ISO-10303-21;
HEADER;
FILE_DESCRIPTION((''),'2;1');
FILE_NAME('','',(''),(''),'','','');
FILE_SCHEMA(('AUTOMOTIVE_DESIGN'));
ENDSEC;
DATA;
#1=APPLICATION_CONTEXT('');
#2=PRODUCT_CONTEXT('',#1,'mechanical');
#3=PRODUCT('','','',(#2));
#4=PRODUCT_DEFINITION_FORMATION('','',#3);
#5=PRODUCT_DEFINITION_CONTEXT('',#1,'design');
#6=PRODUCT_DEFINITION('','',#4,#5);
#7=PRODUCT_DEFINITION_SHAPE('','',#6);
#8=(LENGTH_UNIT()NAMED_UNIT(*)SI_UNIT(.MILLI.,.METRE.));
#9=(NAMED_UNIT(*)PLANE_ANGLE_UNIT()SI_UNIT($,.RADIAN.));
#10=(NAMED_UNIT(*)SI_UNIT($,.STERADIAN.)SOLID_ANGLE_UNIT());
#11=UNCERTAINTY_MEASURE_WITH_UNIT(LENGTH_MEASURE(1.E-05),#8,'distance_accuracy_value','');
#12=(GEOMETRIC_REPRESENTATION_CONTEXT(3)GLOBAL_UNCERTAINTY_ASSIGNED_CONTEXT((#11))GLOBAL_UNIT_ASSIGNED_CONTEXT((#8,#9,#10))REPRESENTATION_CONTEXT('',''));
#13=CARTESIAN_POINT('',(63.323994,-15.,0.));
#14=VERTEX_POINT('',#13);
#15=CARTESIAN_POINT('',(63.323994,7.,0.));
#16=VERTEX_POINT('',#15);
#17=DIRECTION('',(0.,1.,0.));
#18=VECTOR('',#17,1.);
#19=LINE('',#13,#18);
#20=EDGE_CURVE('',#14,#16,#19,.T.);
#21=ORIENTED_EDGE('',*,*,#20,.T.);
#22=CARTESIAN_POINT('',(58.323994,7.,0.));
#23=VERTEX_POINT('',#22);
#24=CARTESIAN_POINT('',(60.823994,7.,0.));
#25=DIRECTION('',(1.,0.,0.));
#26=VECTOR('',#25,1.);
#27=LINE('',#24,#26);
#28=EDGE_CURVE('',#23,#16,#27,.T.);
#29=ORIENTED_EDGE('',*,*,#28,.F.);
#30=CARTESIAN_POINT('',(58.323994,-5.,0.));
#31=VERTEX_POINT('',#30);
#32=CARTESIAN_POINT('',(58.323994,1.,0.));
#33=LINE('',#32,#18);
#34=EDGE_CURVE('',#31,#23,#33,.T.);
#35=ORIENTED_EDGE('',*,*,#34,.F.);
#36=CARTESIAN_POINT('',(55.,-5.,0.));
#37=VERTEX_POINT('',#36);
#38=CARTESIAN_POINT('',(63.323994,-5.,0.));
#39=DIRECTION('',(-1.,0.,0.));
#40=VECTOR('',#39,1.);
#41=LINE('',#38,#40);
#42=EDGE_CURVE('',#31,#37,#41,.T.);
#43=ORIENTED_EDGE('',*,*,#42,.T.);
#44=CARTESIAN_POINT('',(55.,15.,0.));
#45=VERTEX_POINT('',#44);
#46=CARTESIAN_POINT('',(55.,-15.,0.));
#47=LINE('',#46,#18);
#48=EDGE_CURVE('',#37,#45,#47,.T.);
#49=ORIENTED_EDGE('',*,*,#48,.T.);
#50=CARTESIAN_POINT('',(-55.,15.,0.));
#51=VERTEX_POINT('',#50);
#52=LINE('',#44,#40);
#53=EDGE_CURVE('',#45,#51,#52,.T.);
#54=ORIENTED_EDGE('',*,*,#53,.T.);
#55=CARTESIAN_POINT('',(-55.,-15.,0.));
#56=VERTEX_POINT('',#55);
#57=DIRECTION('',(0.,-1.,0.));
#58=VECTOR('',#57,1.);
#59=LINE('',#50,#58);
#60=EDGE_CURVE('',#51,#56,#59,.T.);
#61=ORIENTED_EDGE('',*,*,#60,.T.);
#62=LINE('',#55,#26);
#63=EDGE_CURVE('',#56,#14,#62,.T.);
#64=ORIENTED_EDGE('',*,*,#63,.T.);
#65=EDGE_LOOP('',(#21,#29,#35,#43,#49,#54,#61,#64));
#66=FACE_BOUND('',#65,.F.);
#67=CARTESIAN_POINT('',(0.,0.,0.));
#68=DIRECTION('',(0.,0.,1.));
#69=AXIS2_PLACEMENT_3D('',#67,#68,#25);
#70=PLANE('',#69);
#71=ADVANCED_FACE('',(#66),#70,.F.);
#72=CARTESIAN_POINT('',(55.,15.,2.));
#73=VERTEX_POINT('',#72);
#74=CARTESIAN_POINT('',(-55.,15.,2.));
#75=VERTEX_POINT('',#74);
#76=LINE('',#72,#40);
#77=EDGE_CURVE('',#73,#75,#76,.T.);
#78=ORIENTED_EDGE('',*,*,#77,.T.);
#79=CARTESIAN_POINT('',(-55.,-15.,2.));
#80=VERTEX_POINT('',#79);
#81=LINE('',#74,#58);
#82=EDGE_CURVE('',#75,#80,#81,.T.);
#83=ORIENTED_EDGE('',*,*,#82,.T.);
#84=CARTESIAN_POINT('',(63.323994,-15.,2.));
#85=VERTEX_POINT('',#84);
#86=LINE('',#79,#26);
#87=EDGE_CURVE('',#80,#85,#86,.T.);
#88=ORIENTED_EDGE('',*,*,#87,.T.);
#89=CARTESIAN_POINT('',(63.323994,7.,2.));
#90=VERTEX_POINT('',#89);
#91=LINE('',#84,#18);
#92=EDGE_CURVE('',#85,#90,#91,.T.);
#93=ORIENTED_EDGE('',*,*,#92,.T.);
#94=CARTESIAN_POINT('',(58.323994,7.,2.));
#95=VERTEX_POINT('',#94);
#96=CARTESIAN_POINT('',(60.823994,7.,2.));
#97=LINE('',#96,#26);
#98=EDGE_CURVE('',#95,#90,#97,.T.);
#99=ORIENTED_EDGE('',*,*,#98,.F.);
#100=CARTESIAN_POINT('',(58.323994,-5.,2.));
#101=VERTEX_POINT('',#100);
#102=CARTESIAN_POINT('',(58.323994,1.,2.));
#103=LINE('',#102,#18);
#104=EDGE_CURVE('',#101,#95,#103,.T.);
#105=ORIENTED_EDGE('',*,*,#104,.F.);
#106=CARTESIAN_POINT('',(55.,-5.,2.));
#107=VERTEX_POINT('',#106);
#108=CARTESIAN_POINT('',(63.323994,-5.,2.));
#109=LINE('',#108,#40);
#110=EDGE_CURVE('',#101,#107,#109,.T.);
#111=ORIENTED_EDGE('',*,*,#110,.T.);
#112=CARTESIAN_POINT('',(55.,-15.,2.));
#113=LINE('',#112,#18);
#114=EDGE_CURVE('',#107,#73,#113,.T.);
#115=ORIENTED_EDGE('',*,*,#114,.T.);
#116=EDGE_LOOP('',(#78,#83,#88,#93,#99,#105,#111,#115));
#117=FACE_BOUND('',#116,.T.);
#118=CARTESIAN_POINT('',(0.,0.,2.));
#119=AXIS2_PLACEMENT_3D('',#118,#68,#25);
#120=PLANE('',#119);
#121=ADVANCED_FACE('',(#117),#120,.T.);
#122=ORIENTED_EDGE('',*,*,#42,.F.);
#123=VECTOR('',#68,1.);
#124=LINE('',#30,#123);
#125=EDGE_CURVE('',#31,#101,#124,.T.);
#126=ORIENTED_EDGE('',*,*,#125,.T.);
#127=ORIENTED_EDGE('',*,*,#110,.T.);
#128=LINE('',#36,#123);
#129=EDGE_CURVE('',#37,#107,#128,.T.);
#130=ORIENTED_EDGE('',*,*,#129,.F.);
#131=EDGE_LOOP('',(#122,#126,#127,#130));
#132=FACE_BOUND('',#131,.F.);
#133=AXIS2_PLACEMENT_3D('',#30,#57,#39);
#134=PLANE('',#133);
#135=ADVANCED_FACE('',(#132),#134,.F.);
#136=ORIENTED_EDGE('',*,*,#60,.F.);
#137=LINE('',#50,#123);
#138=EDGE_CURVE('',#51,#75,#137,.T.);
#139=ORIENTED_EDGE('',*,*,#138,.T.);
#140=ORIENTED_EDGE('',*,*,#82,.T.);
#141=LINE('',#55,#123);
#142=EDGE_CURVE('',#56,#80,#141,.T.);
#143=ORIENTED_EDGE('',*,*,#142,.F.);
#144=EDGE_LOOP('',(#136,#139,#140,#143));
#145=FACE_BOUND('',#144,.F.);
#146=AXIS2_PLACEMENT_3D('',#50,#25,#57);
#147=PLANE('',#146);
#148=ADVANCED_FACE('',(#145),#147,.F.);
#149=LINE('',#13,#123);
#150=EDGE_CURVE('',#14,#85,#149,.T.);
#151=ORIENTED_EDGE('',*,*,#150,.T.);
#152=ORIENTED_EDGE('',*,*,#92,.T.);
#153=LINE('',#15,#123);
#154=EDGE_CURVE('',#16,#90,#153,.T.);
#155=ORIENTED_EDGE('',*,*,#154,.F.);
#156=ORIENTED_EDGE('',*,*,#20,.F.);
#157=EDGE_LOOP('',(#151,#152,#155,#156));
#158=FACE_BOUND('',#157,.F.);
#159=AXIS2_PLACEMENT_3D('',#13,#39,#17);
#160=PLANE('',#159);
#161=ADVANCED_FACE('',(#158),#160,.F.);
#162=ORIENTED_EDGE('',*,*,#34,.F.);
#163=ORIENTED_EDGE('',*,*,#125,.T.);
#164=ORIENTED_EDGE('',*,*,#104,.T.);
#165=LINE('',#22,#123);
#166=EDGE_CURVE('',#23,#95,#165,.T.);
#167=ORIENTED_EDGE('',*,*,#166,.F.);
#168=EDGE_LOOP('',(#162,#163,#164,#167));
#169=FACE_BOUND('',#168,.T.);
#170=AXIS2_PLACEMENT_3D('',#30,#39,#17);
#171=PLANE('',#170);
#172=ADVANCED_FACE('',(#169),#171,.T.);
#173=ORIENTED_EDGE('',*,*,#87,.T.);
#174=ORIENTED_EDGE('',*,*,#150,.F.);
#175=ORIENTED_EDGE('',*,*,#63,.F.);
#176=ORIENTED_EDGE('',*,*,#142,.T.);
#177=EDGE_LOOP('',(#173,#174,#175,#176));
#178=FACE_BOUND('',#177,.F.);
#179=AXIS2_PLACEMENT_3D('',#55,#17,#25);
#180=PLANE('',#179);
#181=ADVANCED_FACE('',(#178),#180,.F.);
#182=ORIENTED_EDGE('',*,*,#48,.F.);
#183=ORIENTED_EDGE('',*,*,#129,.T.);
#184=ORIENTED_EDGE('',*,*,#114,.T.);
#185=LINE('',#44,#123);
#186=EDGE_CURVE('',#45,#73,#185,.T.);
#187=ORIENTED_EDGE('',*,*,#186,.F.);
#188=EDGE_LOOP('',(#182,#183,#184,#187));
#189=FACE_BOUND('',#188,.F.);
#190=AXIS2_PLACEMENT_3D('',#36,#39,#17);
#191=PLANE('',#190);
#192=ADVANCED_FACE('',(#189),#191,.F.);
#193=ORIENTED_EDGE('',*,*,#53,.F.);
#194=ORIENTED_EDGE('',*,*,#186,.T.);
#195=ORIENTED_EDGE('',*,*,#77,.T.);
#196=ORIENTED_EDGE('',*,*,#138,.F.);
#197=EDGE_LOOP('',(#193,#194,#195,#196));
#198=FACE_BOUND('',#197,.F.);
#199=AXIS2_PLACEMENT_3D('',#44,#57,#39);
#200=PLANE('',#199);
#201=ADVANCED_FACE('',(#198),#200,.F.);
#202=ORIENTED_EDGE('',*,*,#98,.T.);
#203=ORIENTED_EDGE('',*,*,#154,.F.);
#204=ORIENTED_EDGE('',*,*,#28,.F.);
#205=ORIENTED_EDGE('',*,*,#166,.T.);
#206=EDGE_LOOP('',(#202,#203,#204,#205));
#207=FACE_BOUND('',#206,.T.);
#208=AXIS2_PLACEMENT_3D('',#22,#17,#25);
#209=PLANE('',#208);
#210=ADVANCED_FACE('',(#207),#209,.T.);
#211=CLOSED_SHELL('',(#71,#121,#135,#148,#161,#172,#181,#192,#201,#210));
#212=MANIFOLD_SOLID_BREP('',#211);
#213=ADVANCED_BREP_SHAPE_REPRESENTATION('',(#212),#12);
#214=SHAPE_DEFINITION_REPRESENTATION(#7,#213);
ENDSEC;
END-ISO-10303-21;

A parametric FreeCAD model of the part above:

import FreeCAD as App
import Part
import Sketcher

V = App.Vector
Q = App.Units.Quantity


def add_polygon(sketch, points):
    """Adds a closed chain of lines whose ends are joined by coincident constraints."""
    first, n = sketch.GeometryCount, len(points)
    for a, b in zip(points, points[1:] + points[:1]):
        sketch.addGeometry(Part.LineSegment(App.Vector(*a, 0), App.Vector(*b, 0)), False)
    for i in range(n):
        sketch.addConstraint(Sketcher.Constraint("Coincident", first + i, 2, first + (i + 1) % n, 1))

doc = App.newDocument("Part")
params = doc.addObject("Spreadsheet::Sheet", "Params")
for row, (alias, value) in enumerate([
    ("sketch1_width", "110 mm"),
    ("sketch1_width2", "5 mm"),
    ("sketch1_height", "30 mm"),
    ("sketch1_height2", "22 mm"),
    ("sketch1_height3", "12 mm"),
    ("pad1_length", "2 mm"),
], start=1):
    params.set(f"A{row}", alias)
    params.set(f"B{row}", "=" + value)
    params.setAlias(f"B{row}", alias)

body = doc.addObject("PartDesign::Body", "Body")

# Sketch on XY plane
sketch1 = body.newObject("Sketcher::SketchObject", "Sketch")
sketch1.AttachmentSupport = (doc.getObject("XY_Plane"), [""])
sketch1.MapMode = "FlatFace"
add_polygon(sketch1, [(55, 15), (-55, 15), (-55, -15), (63.323994, -15), (63.323994, 7), (58.323994, 7), (58.323994, -5), (55, -5)])  # lines 0-7
sketch1.addConstraint(Sketcher.Constraint("Horizontal", 0))
sketch1.addConstraint(Sketcher.Constraint("Vertical", 1))
sketch1.addConstraint(Sketcher.Constraint("Horizontal", 2))
sketch1.addConstraint(Sketcher.Constraint("Vertical", 3))
sketch1.addConstraint(Sketcher.Constraint("Horizontal", 4))
sketch1.addConstraint(Sketcher.Constraint("Vertical", 5))
sketch1.addConstraint(Sketcher.Constraint("Horizontal", 6))
sketch1.addConstraint(Sketcher.Constraint("Vertical", 7))
sketch1.addConstraint(Sketcher.Constraint("Symmetric", 1, 2, 7, 2, -1, 1))
sketch1.addConstraint(Sketcher.Constraint("DistanceX", 0, 2, 0, 1, Q("110 mm")))
sketch1.addConstraint(Sketcher.Constraint("DistanceX", 4, 2, 4, 1, Q("5 mm")))
sketch1.addConstraint(Sketcher.Constraint("DistanceY", 1, 2, 1, 1, Q("30 mm")))
sketch1.addConstraint(Sketcher.Constraint("DistanceY", 3, 1, 3, 2, Q("22 mm")))
sketch1.addConstraint(Sketcher.Constraint("DistanceY", 5, 2, 5, 1, Q("12 mm")))
sketch1.addConstraint(Sketcher.Constraint("DistanceX", 2, 1, 2, 2, Q("118.323994 mm")))
sketch1.setExpression("Constraints[17]", "Params.sketch1_width")
sketch1.setExpression("Constraints[18]", "Params.sketch1_width2")
sketch1.setExpression("Constraints[19]", "Params.sketch1_height")
sketch1.setExpression("Constraints[20]", "Params.sketch1_height2")
sketch1.setExpression("Constraints[21]", "Params.sketch1_height3")
pad1 = body.newObject("PartDesign::Pad", "Pad")
pad1.Profile = sketch1
pad1.setExpression("Length", "Params.pad1_length")

doc.recompute()
